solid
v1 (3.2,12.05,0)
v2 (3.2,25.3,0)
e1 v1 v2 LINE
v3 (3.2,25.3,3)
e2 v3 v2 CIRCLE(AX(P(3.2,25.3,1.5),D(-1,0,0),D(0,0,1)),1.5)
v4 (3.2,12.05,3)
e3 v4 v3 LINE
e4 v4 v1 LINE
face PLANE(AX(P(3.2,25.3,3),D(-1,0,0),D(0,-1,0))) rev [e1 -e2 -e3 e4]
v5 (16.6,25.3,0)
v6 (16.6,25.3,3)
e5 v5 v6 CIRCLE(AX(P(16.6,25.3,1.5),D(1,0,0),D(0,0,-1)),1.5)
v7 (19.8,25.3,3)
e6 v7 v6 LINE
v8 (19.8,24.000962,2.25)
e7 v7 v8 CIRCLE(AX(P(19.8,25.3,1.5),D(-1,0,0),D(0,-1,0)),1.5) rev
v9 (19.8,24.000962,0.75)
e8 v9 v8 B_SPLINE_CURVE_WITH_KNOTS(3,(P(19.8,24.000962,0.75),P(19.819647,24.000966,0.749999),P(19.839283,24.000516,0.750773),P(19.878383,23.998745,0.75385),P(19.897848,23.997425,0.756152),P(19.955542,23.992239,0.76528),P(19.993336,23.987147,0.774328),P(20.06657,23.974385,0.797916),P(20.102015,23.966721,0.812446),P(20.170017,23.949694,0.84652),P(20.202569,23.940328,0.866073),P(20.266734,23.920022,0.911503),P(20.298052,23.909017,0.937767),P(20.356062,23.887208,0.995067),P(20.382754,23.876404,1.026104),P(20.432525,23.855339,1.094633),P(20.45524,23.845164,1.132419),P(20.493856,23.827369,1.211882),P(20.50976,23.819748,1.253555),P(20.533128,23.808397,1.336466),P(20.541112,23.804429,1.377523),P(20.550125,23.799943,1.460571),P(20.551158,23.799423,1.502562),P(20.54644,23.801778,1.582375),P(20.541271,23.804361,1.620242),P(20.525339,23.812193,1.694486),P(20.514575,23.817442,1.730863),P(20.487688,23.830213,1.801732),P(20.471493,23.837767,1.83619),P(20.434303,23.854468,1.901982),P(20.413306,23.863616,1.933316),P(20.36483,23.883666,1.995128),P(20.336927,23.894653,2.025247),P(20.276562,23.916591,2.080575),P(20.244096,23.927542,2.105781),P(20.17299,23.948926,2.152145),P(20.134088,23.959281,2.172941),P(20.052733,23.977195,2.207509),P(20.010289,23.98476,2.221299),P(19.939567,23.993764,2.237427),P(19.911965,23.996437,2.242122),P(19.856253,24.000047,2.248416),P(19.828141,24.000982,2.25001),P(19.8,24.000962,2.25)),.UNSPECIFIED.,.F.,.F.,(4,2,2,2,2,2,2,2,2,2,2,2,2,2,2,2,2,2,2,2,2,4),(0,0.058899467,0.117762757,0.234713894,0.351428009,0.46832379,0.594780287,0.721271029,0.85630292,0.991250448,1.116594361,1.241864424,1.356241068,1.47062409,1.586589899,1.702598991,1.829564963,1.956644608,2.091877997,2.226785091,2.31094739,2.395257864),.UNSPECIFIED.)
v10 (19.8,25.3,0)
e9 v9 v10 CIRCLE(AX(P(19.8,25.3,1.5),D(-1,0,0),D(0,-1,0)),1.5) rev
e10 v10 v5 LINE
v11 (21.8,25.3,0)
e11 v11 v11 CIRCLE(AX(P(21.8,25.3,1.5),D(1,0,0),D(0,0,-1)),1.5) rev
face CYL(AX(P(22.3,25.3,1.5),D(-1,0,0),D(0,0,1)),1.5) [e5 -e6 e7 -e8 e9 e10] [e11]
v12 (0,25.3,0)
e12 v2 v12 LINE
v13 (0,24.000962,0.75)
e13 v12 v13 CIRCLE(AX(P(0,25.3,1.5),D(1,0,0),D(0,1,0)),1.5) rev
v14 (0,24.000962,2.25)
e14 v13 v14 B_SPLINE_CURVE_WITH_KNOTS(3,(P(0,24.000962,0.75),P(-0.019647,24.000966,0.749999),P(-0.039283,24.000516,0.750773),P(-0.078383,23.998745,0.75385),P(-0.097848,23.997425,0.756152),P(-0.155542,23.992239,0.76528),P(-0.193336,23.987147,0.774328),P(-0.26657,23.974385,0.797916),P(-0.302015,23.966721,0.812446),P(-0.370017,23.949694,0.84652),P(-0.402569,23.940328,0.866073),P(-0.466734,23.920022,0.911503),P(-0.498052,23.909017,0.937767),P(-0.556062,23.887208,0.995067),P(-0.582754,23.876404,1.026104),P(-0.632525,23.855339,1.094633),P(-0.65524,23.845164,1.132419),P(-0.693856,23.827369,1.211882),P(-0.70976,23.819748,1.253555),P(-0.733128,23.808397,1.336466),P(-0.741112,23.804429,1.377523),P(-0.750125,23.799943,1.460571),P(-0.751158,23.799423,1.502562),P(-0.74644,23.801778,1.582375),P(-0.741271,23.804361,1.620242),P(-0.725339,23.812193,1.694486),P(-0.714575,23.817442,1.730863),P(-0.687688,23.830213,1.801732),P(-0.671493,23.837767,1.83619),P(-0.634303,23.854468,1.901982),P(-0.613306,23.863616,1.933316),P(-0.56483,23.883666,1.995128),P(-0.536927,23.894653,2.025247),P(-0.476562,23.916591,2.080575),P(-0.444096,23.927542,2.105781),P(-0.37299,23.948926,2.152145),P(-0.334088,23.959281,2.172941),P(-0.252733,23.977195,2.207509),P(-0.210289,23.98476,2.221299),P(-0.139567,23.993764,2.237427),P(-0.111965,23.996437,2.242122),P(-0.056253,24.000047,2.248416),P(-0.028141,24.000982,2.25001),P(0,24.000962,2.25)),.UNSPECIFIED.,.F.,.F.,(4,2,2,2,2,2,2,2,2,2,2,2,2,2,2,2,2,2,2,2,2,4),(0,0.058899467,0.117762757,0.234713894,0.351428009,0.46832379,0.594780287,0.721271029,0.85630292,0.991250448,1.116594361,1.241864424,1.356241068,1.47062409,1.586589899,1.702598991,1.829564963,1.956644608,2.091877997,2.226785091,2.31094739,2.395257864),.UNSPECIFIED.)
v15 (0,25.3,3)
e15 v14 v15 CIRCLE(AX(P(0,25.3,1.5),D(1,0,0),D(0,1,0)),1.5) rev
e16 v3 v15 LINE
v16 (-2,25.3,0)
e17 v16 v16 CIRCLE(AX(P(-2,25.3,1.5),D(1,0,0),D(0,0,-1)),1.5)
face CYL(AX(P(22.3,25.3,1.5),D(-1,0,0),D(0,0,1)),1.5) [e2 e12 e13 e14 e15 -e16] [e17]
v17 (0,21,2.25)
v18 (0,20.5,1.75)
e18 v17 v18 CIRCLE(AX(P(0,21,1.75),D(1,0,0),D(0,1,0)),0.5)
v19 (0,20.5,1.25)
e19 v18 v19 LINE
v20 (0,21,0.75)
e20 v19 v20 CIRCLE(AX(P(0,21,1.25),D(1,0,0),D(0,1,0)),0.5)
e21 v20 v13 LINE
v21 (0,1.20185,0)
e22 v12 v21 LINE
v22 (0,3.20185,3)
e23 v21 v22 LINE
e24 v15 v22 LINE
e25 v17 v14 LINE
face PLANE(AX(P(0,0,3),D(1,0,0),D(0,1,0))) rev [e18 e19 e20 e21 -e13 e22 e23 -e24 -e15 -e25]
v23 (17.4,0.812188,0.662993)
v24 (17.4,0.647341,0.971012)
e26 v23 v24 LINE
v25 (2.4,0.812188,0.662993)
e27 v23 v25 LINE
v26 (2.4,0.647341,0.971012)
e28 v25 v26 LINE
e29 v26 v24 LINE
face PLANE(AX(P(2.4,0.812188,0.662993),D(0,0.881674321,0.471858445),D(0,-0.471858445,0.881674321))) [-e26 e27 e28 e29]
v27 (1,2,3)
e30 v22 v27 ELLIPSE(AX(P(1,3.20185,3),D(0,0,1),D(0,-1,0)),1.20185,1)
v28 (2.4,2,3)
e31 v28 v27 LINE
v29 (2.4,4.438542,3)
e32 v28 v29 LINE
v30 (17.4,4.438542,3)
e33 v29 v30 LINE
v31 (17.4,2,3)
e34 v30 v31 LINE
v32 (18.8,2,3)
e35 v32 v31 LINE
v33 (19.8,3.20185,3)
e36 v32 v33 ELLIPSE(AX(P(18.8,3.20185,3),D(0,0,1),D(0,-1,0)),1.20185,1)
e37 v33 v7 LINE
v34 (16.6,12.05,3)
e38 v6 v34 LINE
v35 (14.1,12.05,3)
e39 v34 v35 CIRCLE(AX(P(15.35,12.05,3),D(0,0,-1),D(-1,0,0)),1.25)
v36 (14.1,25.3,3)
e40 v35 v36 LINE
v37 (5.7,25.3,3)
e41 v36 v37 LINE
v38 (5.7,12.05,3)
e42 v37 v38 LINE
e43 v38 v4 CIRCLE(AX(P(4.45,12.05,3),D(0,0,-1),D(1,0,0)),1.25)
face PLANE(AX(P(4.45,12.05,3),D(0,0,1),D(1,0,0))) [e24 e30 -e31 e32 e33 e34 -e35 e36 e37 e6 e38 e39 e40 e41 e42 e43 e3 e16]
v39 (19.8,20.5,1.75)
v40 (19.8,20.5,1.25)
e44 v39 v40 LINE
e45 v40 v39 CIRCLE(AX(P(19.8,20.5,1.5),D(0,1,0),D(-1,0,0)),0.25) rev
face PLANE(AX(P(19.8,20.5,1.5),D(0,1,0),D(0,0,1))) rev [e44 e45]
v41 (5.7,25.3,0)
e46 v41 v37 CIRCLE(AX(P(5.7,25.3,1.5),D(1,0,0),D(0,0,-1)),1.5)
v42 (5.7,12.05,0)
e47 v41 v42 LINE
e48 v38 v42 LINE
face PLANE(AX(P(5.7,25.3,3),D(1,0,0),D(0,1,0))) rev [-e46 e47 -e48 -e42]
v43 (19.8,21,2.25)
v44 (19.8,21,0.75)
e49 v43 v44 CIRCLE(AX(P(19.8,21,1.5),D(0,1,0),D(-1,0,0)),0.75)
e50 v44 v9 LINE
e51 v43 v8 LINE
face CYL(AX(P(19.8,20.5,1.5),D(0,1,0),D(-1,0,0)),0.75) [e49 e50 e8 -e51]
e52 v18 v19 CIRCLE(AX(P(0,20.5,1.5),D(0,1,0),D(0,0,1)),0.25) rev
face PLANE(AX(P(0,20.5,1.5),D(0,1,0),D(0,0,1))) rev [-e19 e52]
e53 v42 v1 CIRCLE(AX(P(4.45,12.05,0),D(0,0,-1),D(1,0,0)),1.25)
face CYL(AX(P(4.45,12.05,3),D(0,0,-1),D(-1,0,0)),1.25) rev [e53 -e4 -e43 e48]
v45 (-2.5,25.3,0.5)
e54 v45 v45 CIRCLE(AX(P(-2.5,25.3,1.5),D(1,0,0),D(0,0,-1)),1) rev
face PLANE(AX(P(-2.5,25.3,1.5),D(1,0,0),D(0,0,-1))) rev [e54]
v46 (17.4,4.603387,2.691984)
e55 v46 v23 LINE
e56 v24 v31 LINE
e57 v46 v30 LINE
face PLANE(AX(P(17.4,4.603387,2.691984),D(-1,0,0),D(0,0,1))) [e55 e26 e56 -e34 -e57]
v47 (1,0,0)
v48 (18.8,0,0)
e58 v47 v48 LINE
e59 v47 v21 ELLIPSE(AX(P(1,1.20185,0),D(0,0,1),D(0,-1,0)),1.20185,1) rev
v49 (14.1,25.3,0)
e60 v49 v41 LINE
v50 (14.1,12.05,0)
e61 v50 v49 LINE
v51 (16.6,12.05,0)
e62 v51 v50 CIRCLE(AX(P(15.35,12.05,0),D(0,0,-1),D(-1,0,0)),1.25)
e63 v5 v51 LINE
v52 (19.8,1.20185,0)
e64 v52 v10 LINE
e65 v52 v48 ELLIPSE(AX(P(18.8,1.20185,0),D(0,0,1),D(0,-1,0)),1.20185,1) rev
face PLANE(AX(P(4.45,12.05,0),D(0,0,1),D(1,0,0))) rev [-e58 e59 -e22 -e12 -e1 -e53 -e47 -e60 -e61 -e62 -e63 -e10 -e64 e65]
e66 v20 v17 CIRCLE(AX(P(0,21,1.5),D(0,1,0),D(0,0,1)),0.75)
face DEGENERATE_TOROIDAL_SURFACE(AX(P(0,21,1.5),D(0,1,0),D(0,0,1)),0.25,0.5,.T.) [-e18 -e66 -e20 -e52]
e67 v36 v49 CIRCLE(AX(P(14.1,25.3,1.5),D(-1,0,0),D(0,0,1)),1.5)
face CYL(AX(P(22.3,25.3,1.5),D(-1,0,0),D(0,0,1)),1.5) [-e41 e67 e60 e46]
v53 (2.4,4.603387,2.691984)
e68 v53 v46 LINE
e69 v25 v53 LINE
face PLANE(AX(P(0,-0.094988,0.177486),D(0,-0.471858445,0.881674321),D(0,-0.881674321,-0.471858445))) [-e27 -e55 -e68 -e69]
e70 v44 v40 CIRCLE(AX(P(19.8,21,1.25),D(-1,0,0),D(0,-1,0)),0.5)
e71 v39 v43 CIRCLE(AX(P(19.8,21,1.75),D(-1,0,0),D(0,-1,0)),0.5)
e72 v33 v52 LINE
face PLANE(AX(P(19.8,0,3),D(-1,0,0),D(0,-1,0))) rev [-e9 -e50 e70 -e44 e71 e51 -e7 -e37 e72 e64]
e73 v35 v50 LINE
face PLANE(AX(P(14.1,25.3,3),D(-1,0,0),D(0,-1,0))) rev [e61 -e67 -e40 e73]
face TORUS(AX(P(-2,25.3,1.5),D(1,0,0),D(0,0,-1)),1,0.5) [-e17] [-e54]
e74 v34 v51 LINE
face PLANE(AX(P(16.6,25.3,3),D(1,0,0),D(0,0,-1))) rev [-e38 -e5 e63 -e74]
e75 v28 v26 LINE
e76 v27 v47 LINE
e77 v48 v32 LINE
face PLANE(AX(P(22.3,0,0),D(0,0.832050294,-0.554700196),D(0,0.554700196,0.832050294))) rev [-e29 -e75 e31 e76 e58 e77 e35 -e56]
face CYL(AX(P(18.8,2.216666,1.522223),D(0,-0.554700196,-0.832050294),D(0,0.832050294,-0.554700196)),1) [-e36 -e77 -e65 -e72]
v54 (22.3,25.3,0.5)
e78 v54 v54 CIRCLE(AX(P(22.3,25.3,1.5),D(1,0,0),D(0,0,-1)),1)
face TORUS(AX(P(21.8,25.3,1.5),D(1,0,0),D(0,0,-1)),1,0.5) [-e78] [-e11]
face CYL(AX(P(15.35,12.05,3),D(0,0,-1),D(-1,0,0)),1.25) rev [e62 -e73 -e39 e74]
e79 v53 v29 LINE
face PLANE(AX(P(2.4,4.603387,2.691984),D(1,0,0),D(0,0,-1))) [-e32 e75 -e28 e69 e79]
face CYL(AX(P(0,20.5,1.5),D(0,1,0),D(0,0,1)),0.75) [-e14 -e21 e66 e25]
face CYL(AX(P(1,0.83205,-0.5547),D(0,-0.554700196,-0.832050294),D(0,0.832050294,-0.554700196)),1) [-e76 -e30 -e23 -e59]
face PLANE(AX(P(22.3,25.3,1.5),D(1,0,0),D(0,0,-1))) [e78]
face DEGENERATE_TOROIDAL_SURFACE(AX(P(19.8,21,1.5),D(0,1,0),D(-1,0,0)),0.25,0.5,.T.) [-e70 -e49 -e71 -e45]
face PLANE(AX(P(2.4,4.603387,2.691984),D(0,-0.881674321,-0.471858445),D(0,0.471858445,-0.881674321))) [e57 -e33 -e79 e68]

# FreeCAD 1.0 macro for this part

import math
import FreeCAD as App
import Part
import Sketcher

V = App.Vector


def edges_at(feature, points):
    """Names of the edges that pass closest to the given points."""
    edges = feature.Shape.Edges
    near = lambda p: min(range(len(edges)), key=lambda i: edges[i].distToShape(Part.Vertex(*p))[0])
    return sorted({f"Edge{near(p) + 1}" for p in points})


def add_polygon(sketch, points):
    """Adds a closed chain of lines whose ends are joined by coincident constraints."""
    first, n = sketch.GeometryCount, len(points)
    for a, b in zip(points, points[1:] + points[:1]):
        sketch.addGeometry(Part.LineSegment(App.Vector(*a, 0), App.Vector(*b, 0)), False)
    for i in range(n):
        sketch.addConstraint(Sketcher.Constraint("Coincident", first + i, 2, first + (i + 1) % n, 1))

doc = App.newDocument("Part")
body = doc.addObject("PartDesign::Body", "Body")

# Sketch on XY plane
sketch1 = body.newObject("Sketcher::SketchObject", "Sketch")
sketch1.AttachmentSupport = (doc.getObject("XY_Plane"), [""])
sketch1.MapMode = "FlatFace"
sketch1.addGeometry(Part.LineSegment(V(3.2, 12.1, 0), V(3.2, 25.3, 0)), False)
sketch1.addGeometry(Part.LineSegment(V(3.2, 25.3, 0), V(0, 25.3, 0)), False)
sketch1.addGeometry(Part.LineSegment(V(0, 25.3, 0), V(0, 0, 0)), False)
sketch1.addGeometry(Part.LineSegment(V(0, 0, 0), V(19.8, 0, 0)), False)
sketch1.addGeometry(Part.LineSegment(V(19.8, 0, 0), V(19.8, 25.3, 0)), False)
sketch1.addGeometry(Part.LineSegment(V(19.8, 25.3, 0), V(16.6, 25.3, 0)), False)
sketch1.addGeometry(Part.LineSegment(V(16.6, 25.3, 0), V(16.6, 12.1, 0)), False)
sketch1.addGeometry(Part.ArcOfCircle(Part.Circle(V(15.3, 12.1, 0), V(0, 0, 1), 1.2), math.radians(180), math.radians(360)), False)
sketch1.addGeometry(Part.LineSegment(V(14.1, 12.1, 0), V(14.1, 25.3, 0)), False)
sketch1.addGeometry(Part.LineSegment(V(14.1, 25.3, 0), V(5.7, 25.3, 0)), False)
sketch1.addGeometry(Part.LineSegment(V(5.7, 25.3, 0), V(5.7, 12.1, 0)), False)
sketch1.addGeometry(Part.ArcOfCircle(Part.Circle(V(4.5, 12.1, 0), V(0, 0, 1), 1.2), math.radians(180), math.radians(360)), False)
sketch1.addConstraint(Sketcher.Constraint("Coincident", 0, 2, 1, 1))
sketch1.addConstraint(Sketcher.Constraint("Coincident", 1, 2, 2, 1))
sketch1.addConstraint(Sketcher.Constraint("Coincident", 2, 2, 3, 1))
sketch1.addConstraint(Sketcher.Constraint("Coincident", 3, 2, 4, 1))
sketch1.addConstraint(Sketcher.Constraint("Coincident", 4, 2, 5, 1))
sketch1.addConstraint(Sketcher.Constraint("Coincident", 5, 2, 6, 1))
sketch1.addConstraint(Sketcher.Constraint("Tangent", 6, 2, 7, 2))
sketch1.addConstraint(Sketcher.Constraint("Tangent", 7, 1, 8, 1))
sketch1.addConstraint(Sketcher.Constraint("Coincident", 8, 2, 9, 1))
sketch1.addConstraint(Sketcher.Constraint("Coincident", 9, 2, 10, 1))
sketch1.addConstraint(Sketcher.Constraint("Tangent", 10, 2, 11, 2))
sketch1.addConstraint(Sketcher.Constraint("Tangent", 11, 1, 0, 1))
sketch1.addConstraint(Sketcher.Constraint("Vertical", 0))
sketch1.addConstraint(Sketcher.Constraint("Horizontal", 1))
sketch1.addConstraint(Sketcher.Constraint("Vertical", 2))
sketch1.addConstraint(Sketcher.Constraint("Horizontal", 3))
sketch1.addConstraint(Sketcher.Constraint("Vertical", 4))
sketch1.addConstraint(Sketcher.Constraint("Horizontal", 5))
sketch1.addConstraint(Sketcher.Constraint("Vertical", 6))
sketch1.addConstraint(Sketcher.Constraint("Vertical", 8))
sketch1.addConstraint(Sketcher.Constraint("Horizontal", 9))
sketch1.addConstraint(Sketcher.Constraint("Vertical", 10))
sketch1.addConstraint(Sketcher.Constraint("Coincident", 2, 2, -1, 1))
sketch1.addConstraint(Sketcher.Constraint("Equal", 7, 11))
sketch1.addConstraint(Sketcher.Constraint("Horizontal", 7, 3, 11, 3))
sketch1.addConstraint(Sketcher.Constraint("Horizontal", 1, 2, 4, 2))
sketch1.addConstraint(Sketcher.Constraint("Horizontal", 5, 2, 8, 2))
sketch1.addConstraint(Sketcher.Constraint("Equal", 1, 5))
sketch1.addConstraint(Sketcher.Constraint("Radius", 7, 1.25))
sketch1.addConstraint(Sketcher.Constraint("DistanceX", 1, 2, 1, 1, 3.2))
sketch1.addConstraint(Sketcher.Constraint("DistanceX", 3, 1, 3, 2, 19.8))
sketch1.addConstraint(Sketcher.Constraint("DistanceY", 2, 2, 2, 1, 25.3))
sketch1.addConstraint(Sketcher.Constraint("DistanceY", 0, 1, 0, 2, 13.25))
pad1 = body.newObject("PartDesign::Pad", "Pad")
pad1.Profile = sketch1
pad1.Length = 3

# Sketch on YZ plane
sketch2 = body.newObject("Sketcher::SketchObject", "Sketch001")
sketch2.AttachmentSupport = (doc.getObject("YZ_Plane"), [""])
sketch2.MapMode = "FlatFace"
sketch2.AttachmentOffset = App.Placement(V(0, 0, 19.8), App.Rotation())
sketch2.addGeometry(Part.Circle(V(25.3, 1.5, 0), V(0, 0, 1), 1.5), False)
sketch2.addConstraint(Sketcher.Constraint("Diameter", 0, 3.0))
sketch2.addConstraint(Sketcher.Constraint("DistanceX", -1, 1, 0, 3, 25.3))
sketch2.addConstraint(Sketcher.Constraint("DistanceY", -1, 1, 0, 3, 1.5))
pad2 = body.newObject("PartDesign::Pad", "Pad001")
pad2.Profile = sketch2
pad2.Type = "TwoLengths"
pad2.Length = 2.5
pad2.Length2 = 22.3

# Sketch on XY plane
sketch3 = body.newObject("Sketcher::SketchObject", "Sketch002")
sketch3.AttachmentSupport = (doc.getObject("XY_Plane"), [""])
sketch3.MapMode = "FlatFace"
add_polygon(sketch3, [(3.2, 32.8), (3.2, 12.1), (5.7, 12.1), (5.7, 32.8)])  # lines 0-3
add_polygon(sketch3, [(14.1, 32.8), (14.1, 12.1), (16.6, 12.1), (16.6, 32.8)])  # lines 4-7
sketch3.addConstraint(Sketcher.Constraint("Vertical", 0))
sketch3.addConstraint(Sketcher.Constraint("Horizontal", 1))
sketch3.addConstraint(Sketcher.Constraint("Vertical", 2))
sketch3.addConstraint(Sketcher.Constraint("Horizontal", 3))
sketch3.addConstraint(Sketcher.Constraint("Vertical", 4))
sketch3.addConstraint(Sketcher.Constraint("Horizontal", 5))
sketch3.addConstraint(Sketcher.Constraint("Vertical", 6))
sketch3.addConstraint(Sketcher.Constraint("Horizontal", 7))
sketch3.addConstraint(Sketcher.Constraint("Horizontal", 1, 2, 4, 2))
sketch3.addConstraint(Sketcher.Constraint("Horizontal", 3, 2, 6, 2))
sketch3.addConstraint(Sketcher.Constraint("Equal", 3, 5))
sketch3.addConstraint(Sketcher.Constraint("DistanceX", 1, 1, 1, 2, 2.5))
sketch3.addConstraint(Sketcher.Constraint("DistanceX", -1, 1, 0, 2, 3.2))
sketch3.addConstraint(Sketcher.Constraint("DistanceX", -1, 1, 4, 2, 14.1))
sketch3.addConstraint(Sketcher.Constraint("DistanceY", -1, 1, 0, 2, 12.05))
sketch3.addConstraint(Sketcher.Constraint("DistanceY", 0, 2, 0, 1, 20.7338))
pocket1 = body.newObject("PartDesign::Pocket", "Pocket")
pocket1.Profile = sketch3
pocket1.Type = "ThroughAll"
pocket1.Midplane = True

# Sketch on XZ plane
sketch4 = body.newObject("Sketcher::SketchObject", "Sketch003")
sketch4.AttachmentSupport = (doc.getObject("XZ_Plane"), [""])
sketch4.MapMode = "FlatFace"
sketch4.AttachmentOffset = App.Placement(V(0, 0, -26.3), App.Rotation())
sketch4.addGeometry(Part.LineSegment(V(0, 2.2, 0), V(0, 0.8, 0)), False)
sketch4.addGeometry(Part.ArcOfCircle(Part.Circle(V(0, 1.5, 0), V(0, 0, 1), 0.8), math.radians(90), math.radians(270)), False)
sketch4.addConstraint(Sketcher.Constraint("Coincident", 0, 1, 1, 1))
sketch4.addConstraint(Sketcher.Constraint("Coincident", 1, 2, 0, 2))
sketch4.addConstraint(Sketcher.Constraint("Vertical", 0))
sketch4.addConstraint(Sketcher.Constraint("PointOnObject", 1, 3, -2))
sketch4.addConstraint(Sketcher.Constraint("PointOnObject", 0, 1, -2))
sketch4.addConstraint(Sketcher.Constraint("Radius", 1, 0.75))
sketch4.addConstraint(Sketcher.Constraint("DistanceY", -1, 1, 1, 3, 1.5))
pad3 = body.newObject("PartDesign::Pad", "Pad002")
pad3.Profile = sketch4
pad3.Length = 5.8
doc.recompute()

fillet = body.newObject("PartDesign::Fillet", "Fillet")
fillet.Base = (pad3, edges_at(pad3, [(-0.75, 20.5, 1.5)]))
fillet.Radius = 0.5
doc.recompute()

datumplane = body.newObject("PartDesign::Plane", "DatumPlane")
datumplane.AttachmentSupport = (doc.getObject("YZ_Plane"), [""])
datumplane.MapMode = "FlatFace"
datumplane.AttachmentOffset = App.Placement(V(0, 0, 9.9), App.Rotation())
mirrored = body.newObject("PartDesign::Mirrored", "Mirrored")
mirrored.Originals = [pad3]
mirrored.MirrorPlane = (datumplane, [""])
body.Tip = mirrored
doc.recompute()

fillet2 = body.newObject("PartDesign::Fillet", "Fillet001")
fillet2.Base = (mirrored, edges_at(mirrored, [(20.55, 20.5, 1.5)]))
fillet2.Radius = 0.5

# Sketch on YZ plane
sketch5 = body.newObject("Sketcher::SketchObject", "Sketch004")
sketch5.AttachmentSupport = (doc.getObject("YZ_Plane"), [""])
sketch5.MapMode = "FlatFace"
add_polygon(sketch5, [(2, 3), (0, 0), (-2.6, 0), (-2.6, 3)])  # lines 0-3
sketch5.addConstraint(Sketcher.Constraint("Horizontal", 1))
sketch5.addConstraint(Sketcher.Constraint("Vertical", 2))
sketch5.addConstraint(Sketcher.Constraint("Horizontal", 3))
sketch5.addConstraint(Sketcher.Constraint("Coincident", 0, 2, -1, 1))
sketch5.addConstraint(Sketcher.Constraint("DistanceY", 2, 1, 2, 2, 3.0))
sketch5.addConstraint(Sketcher.Constraint("DistanceX", -1, 1, 3, 2, 2.0))
sketch5.addConstraint(Sketcher.Constraint("DistanceX", 1, 2, 1, 1, 2.592158))
pocket2 = body.newObject("PartDesign::Pocket", "Pocket001")
pocket2.Profile = sketch5
pocket2.Type = "ThroughAll"
pocket2.Reversed = True

# Sketch on an angled plane
sketch6 = body.newObject("Sketcher::SketchObject", "Sketch005")
sketch6.Placement = App.Placement(V(0, -0.802776, 1.499998), App.Rotation(V(-1, 0, 0), V(0, 0.881674321, 0.471858445), V(0, 0.471858445, -0.881674321), "ZXY"))
add_polygon(sketch6, [(-17.4, 5.3), (-17.4, 1), (-2.4, 1), (-2.4, 5.3)])  # lines 0-3
sketch6.addConstraint(Sketcher.Constraint("Vertical", 0))
sketch6.addConstraint(Sketcher.Constraint("Horizontal", 1))
sketch6.addConstraint(Sketcher.Constraint("Vertical", 2))
sketch6.addConstraint(Sketcher.Constraint("Horizontal", 3))
sketch6.addConstraint(Sketcher.Constraint("DistanceX", 1, 1, 1, 2, 15.0))
sketch6.addConstraint(Sketcher.Constraint("DistanceY", 0, 2, 0, 1, 4.3))
sketch6.addConstraint(Sketcher.Constraint("DistanceX", 0, 2, -1, 1, 17.4))
sketch6.addConstraint(Sketcher.Constraint("DistanceY", -1, 1, 0, 2, 1.028924))
pocket3 = body.newObject("PartDesign::Pocket", "Pocket002")
pocket3.Profile = sketch6
pocket3.Length = 1.5
pocket3.Reversed = True
doc.recompute()

fillet3 = body.newObject("PartDesign::Fillet", "Fillet002")
fillet3.Base = (pocket3, edges_at(pocket3, [(-2.5, 25.3, 3), (22.3, 25.3, 3)]))
fillet3.Radius = 0.5
doc.recompute()

fillet4 = body.newObject("PartDesign::Fillet", "Fillet003")
fillet4.Base = (fillet3, edges_at(fillet3, [(19.8, 1, 1.5), (0, 1, 1.5)]))
fillet4.Radius = 1

doc.recompute()
